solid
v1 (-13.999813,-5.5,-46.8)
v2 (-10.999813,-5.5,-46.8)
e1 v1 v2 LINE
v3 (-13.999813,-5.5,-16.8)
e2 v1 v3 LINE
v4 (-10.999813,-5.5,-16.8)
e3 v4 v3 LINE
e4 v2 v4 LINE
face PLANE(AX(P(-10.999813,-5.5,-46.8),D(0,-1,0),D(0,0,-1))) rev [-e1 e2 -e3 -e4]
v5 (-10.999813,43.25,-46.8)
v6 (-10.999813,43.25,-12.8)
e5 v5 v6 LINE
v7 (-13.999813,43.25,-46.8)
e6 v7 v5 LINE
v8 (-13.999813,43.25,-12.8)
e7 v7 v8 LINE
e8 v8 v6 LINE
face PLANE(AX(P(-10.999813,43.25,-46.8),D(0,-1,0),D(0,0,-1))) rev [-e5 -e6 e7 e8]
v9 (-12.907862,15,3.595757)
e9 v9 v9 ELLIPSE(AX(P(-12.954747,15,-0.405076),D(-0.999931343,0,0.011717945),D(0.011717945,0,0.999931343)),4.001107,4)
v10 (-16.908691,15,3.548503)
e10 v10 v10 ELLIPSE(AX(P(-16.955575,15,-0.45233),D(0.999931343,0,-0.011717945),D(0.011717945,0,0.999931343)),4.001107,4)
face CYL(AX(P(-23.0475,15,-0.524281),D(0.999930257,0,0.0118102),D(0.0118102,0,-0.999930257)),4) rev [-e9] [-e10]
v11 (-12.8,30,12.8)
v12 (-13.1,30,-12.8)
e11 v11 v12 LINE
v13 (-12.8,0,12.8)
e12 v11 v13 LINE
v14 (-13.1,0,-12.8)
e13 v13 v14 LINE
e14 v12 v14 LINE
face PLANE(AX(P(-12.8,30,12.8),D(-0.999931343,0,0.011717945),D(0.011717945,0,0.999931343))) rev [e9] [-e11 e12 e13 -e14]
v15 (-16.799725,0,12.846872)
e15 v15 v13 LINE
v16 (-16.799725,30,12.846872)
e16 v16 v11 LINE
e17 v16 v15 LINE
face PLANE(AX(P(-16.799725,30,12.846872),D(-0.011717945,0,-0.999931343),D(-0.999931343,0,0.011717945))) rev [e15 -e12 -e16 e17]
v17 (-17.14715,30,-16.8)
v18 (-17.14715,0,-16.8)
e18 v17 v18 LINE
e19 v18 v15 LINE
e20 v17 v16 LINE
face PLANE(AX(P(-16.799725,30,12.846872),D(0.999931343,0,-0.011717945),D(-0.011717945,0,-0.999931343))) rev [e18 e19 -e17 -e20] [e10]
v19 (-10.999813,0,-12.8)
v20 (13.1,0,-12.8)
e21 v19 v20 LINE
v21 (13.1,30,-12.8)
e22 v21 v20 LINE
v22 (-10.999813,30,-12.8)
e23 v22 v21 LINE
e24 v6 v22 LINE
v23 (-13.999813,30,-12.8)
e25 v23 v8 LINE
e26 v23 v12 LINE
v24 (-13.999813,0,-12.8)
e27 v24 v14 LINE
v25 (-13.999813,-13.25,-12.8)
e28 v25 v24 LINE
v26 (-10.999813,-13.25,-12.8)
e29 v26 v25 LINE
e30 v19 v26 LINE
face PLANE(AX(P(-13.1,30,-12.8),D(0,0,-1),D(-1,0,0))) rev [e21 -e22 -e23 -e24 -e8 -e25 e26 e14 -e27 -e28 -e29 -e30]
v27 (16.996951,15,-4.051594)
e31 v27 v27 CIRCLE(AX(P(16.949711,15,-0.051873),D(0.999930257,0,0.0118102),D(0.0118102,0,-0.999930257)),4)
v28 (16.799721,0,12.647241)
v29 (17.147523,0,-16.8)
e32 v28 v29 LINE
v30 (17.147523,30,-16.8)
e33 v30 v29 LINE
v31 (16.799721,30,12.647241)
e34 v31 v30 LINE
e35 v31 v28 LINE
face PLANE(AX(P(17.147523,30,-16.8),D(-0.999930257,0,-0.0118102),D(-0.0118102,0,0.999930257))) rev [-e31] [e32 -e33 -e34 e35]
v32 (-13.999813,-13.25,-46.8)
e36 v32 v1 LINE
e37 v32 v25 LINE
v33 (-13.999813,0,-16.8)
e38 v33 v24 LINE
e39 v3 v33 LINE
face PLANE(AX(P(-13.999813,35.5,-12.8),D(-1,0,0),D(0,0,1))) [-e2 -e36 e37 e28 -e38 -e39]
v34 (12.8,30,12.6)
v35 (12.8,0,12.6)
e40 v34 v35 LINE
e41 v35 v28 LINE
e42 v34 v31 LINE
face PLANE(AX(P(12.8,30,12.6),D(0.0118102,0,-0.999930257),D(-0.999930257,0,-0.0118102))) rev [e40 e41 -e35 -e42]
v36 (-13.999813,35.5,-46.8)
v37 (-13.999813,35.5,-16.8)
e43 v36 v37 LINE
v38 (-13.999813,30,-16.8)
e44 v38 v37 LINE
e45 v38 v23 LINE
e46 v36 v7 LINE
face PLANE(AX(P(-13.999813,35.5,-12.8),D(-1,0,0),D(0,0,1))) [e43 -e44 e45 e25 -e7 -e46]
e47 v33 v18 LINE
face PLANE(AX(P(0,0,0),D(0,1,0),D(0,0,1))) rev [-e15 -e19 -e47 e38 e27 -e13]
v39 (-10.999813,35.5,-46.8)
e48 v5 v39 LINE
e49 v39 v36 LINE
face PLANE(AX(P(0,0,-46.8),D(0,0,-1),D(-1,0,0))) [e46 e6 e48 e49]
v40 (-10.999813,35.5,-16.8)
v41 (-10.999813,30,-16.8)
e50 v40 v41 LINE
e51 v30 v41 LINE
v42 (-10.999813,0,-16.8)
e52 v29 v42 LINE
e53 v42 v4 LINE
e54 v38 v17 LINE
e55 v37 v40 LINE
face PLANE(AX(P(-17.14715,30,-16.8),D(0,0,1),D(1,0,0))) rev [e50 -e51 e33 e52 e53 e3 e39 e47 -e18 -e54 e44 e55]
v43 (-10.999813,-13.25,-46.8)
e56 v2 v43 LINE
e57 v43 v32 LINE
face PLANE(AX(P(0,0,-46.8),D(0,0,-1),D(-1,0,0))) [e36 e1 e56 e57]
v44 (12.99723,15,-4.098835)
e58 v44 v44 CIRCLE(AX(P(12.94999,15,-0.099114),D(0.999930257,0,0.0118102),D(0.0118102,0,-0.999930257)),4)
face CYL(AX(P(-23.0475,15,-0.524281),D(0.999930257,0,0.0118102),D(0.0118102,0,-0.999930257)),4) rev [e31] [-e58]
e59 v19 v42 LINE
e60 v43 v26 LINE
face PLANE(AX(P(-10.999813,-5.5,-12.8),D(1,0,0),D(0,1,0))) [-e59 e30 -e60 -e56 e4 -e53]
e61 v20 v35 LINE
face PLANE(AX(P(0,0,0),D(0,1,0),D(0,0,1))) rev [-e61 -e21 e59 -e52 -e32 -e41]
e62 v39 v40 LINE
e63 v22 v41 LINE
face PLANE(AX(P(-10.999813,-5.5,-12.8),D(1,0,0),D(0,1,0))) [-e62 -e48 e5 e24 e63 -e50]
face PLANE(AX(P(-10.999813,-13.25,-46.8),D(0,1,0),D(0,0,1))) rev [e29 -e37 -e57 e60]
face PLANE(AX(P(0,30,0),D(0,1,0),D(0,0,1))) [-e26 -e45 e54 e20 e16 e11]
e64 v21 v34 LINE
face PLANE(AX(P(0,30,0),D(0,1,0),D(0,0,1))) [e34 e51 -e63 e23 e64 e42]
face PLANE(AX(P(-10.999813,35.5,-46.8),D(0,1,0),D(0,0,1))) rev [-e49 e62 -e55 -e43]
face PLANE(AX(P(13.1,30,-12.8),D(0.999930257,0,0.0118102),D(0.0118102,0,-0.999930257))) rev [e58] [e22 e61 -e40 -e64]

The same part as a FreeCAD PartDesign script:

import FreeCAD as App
import Part
import Sketcher


def add_polygon(sketch, points):
    """Adds a closed chain of lines whose ends are joined by coincident constraints."""
    first, n = sketch.GeometryCount, len(points)
    for a, b in zip(points, points[1:] + points[:1]):
        sketch.addGeometry(Part.LineSegment(App.Vector(*a, 0), App.Vector(*b, 0)), False)
    for i in range(n):
        sketch.addConstraint(Sketcher.Constraint("Coincident", first + i, 2, first + (i + 1) % n, 1))

doc = App.newDocument("Part")
body = doc.addObject("PartDesign::Body", "Body")

sketch1 = body.newObject("Sketcher::SketchObject", "Sketch")
sketch1.AttachmentSupport = (doc.getObject("XZ_Plane"), [""])
sketch1.MapMode = "FlatFace"
add_polygon(sketch1, [(-12.8, 12.8), (-13.1, -12.8), (13.1, -12.8), (12.8, 12.6), (16.799721, 12.647241), (17.147523, -16.8), (-17.14715, -16.8), (-16.799725, 12.846872)])
sketch1.addConstraint([
    Sketcher.Constraint("Horizontal", 1),
    Sketcher.Constraint("Horizontal", 5),
    Sketcher.Constraint("Perpendicular", 2, 3),
    Sketcher.Constraint("Perpendicular", 3, 4),
    Sketcher.Constraint("Parallel", 0, 6),
    Sketcher.Constraint("Perpendicular", 6, 7),
    Sketcher.Constraint("Equal", 3, 7),
    Sketcher.Constraint("Distance", 3, 4.0),
    Sketcher.Constraint("DistanceX", 1, 1, 1, 2, 26.2),
    Sketcher.Constraint("DistanceY", 4, 2, 1, 2, 4.0),
    Sketcher.Constraint("DistanceX", 0, 2, -1, 1, 13.1),
    Sketcher.Constraint("DistanceY", 0, 2, -1, 1, 12.8),
    Sketcher.Constraint("DistanceX", -1, 1, 2, 2, 12.8),
    Sketcher.Constraint("DistanceY", -1, 1, 2, 2, 12.6),
    Sketcher.Constraint("DistanceX", 7, 2, -1, 1, 12.8),
    Sketcher.Constraint("DistanceY", -1, 1, 7, 2, 12.8),
])
pad1 = body.newObject("PartDesign::Pad", "Pad")
pad1.Profile = sketch1
pad1.Length = 30
pad1.Reversed = True

sketch2 = body.newObject("Sketcher::SketchObject", "Sketch001")
sketch2.Placement = App.Placement(App.Vector(16.946734, 0, 0.200158), App.Rotation(App.Vector(0.0118102, 0, -0.999930257), App.Vector(0, 1, 0), App.Vector(0.999930257, 0, 0.0118102), "ZXY"))
sketch2.addGeometry(Part.Circle(App.Vector(0.252049, 15, 0), App.Vector(0, 0, 1), 4), False)
sketch2.addConstraint([
    Sketcher.Constraint("Diameter", 0, 8.0),
    Sketcher.Constraint("DistanceY", -1, 1, 0, 3, 15.0),
    Sketcher.Constraint("DistanceX", -1, 1, 0, 3, 0.252049),
])
pocket1 = body.newObject("PartDesign::Pocket", "Pocket")
pocket1.Profile = sketch2
pocket1.Length = 40

sketch3 = body.newObject("Sketcher::SketchObject", "Sketch002")
sketch3.AttachmentSupport = (doc.getObject("XY_Plane"), [""])
sketch3.MapMode = "FlatFace"
sketch3.AttachmentOffset = App.Placement(App.Vector(0, 0, -16.8), App.Rotation())
add_polygon(sketch3, [(-10.999813, 35.5), (-10.999813, -5.5), (-13.999813, -5.5), (-13.999813, 35.5)])
sketch3.addConstraint([
    Sketcher.Constraint("Vertical", 0),
    Sketcher.Constraint("Horizontal", 1),
    Sketcher.Constraint("Vertical", 2),
    Sketcher.Constraint("Horizontal", 3),
    Sketcher.Constraint("DistanceX", 1, 2, 1, 1, 3.0),
    Sketcher.Constraint("DistanceY", 0, 2, 0, 1, 41.0),
    Sketcher.Constraint("DistanceY", 0, 2, -1, 1, 5.5),
    Sketcher.Constraint("DistanceX", 0, 2, -1, 1, 10.999813),
])
pad2 = body.newObject("PartDesign::Pad", "Pad001")
pad2.Profile = sketch3
pad2.Length = 4

sketch4 = body.newObject("Sketcher::SketchObject", "Sketch003")
sketch4.AttachmentSupport = (doc.getObject("XY_Plane"), [""])
sketch4.MapMode = "FlatFace"
sketch4.AttachmentOffset = App.Placement(App.Vector(0, 0, -16.8), App.Rotation())
add_polygon(sketch4, [(-10.999813, 43.25), (-10.999813, 35.5), (-13.999813, 35.5), (-13.999813, 43.25)])
add_polygon(sketch4, [(-10.999813, -5.5), (-10.999813, -13.25), (-13.999813, -13.25), (-13.999813, -5.5)])
sketch4.addConstraint([
    Sketcher.Constraint("Vertical", 0),
    Sketcher.Constraint("Horizontal", 1),
    Sketcher.Constraint("Vertical", 2),
    Sketcher.Constraint("Horizontal", 3),
    Sketcher.Constraint("Vertical", 4),
    Sketcher.Constraint("Horizontal", 5),
    Sketcher.Constraint("Vertical", 6),
    Sketcher.Constraint("Horizontal", 7),
    Sketcher.Constraint("Vertical", 3, 2, 4, 2),
    Sketcher.Constraint("Vertical", 2, 2, 5, 2),
    Sketcher.Constraint("Equal", 2, 4),
    Sketcher.Constraint("DistanceX", 1, 2, 1, 1, 3.0),
    Sketcher.Constraint("DistanceY", 6, 2, 1, 2, 41.0),
    Sketcher.Constraint("DistanceY", 0, 2, 0, 1, 7.75),
    Sketcher.Constraint("DistanceY", -1, 1, 0, 2, 35.5),
    Sketcher.Constraint("DistanceX", 0, 2, -1, 1, 10.999813),
])
pad3 = body.newObject("PartDesign::Pad", "Pad002")
pad3.Profile = sketch4
pad3.Type = "TwoLengths"
pad3.Length = 30
pad3.Length2 = 4
pad3.Reversed = True

doc.recompute()
